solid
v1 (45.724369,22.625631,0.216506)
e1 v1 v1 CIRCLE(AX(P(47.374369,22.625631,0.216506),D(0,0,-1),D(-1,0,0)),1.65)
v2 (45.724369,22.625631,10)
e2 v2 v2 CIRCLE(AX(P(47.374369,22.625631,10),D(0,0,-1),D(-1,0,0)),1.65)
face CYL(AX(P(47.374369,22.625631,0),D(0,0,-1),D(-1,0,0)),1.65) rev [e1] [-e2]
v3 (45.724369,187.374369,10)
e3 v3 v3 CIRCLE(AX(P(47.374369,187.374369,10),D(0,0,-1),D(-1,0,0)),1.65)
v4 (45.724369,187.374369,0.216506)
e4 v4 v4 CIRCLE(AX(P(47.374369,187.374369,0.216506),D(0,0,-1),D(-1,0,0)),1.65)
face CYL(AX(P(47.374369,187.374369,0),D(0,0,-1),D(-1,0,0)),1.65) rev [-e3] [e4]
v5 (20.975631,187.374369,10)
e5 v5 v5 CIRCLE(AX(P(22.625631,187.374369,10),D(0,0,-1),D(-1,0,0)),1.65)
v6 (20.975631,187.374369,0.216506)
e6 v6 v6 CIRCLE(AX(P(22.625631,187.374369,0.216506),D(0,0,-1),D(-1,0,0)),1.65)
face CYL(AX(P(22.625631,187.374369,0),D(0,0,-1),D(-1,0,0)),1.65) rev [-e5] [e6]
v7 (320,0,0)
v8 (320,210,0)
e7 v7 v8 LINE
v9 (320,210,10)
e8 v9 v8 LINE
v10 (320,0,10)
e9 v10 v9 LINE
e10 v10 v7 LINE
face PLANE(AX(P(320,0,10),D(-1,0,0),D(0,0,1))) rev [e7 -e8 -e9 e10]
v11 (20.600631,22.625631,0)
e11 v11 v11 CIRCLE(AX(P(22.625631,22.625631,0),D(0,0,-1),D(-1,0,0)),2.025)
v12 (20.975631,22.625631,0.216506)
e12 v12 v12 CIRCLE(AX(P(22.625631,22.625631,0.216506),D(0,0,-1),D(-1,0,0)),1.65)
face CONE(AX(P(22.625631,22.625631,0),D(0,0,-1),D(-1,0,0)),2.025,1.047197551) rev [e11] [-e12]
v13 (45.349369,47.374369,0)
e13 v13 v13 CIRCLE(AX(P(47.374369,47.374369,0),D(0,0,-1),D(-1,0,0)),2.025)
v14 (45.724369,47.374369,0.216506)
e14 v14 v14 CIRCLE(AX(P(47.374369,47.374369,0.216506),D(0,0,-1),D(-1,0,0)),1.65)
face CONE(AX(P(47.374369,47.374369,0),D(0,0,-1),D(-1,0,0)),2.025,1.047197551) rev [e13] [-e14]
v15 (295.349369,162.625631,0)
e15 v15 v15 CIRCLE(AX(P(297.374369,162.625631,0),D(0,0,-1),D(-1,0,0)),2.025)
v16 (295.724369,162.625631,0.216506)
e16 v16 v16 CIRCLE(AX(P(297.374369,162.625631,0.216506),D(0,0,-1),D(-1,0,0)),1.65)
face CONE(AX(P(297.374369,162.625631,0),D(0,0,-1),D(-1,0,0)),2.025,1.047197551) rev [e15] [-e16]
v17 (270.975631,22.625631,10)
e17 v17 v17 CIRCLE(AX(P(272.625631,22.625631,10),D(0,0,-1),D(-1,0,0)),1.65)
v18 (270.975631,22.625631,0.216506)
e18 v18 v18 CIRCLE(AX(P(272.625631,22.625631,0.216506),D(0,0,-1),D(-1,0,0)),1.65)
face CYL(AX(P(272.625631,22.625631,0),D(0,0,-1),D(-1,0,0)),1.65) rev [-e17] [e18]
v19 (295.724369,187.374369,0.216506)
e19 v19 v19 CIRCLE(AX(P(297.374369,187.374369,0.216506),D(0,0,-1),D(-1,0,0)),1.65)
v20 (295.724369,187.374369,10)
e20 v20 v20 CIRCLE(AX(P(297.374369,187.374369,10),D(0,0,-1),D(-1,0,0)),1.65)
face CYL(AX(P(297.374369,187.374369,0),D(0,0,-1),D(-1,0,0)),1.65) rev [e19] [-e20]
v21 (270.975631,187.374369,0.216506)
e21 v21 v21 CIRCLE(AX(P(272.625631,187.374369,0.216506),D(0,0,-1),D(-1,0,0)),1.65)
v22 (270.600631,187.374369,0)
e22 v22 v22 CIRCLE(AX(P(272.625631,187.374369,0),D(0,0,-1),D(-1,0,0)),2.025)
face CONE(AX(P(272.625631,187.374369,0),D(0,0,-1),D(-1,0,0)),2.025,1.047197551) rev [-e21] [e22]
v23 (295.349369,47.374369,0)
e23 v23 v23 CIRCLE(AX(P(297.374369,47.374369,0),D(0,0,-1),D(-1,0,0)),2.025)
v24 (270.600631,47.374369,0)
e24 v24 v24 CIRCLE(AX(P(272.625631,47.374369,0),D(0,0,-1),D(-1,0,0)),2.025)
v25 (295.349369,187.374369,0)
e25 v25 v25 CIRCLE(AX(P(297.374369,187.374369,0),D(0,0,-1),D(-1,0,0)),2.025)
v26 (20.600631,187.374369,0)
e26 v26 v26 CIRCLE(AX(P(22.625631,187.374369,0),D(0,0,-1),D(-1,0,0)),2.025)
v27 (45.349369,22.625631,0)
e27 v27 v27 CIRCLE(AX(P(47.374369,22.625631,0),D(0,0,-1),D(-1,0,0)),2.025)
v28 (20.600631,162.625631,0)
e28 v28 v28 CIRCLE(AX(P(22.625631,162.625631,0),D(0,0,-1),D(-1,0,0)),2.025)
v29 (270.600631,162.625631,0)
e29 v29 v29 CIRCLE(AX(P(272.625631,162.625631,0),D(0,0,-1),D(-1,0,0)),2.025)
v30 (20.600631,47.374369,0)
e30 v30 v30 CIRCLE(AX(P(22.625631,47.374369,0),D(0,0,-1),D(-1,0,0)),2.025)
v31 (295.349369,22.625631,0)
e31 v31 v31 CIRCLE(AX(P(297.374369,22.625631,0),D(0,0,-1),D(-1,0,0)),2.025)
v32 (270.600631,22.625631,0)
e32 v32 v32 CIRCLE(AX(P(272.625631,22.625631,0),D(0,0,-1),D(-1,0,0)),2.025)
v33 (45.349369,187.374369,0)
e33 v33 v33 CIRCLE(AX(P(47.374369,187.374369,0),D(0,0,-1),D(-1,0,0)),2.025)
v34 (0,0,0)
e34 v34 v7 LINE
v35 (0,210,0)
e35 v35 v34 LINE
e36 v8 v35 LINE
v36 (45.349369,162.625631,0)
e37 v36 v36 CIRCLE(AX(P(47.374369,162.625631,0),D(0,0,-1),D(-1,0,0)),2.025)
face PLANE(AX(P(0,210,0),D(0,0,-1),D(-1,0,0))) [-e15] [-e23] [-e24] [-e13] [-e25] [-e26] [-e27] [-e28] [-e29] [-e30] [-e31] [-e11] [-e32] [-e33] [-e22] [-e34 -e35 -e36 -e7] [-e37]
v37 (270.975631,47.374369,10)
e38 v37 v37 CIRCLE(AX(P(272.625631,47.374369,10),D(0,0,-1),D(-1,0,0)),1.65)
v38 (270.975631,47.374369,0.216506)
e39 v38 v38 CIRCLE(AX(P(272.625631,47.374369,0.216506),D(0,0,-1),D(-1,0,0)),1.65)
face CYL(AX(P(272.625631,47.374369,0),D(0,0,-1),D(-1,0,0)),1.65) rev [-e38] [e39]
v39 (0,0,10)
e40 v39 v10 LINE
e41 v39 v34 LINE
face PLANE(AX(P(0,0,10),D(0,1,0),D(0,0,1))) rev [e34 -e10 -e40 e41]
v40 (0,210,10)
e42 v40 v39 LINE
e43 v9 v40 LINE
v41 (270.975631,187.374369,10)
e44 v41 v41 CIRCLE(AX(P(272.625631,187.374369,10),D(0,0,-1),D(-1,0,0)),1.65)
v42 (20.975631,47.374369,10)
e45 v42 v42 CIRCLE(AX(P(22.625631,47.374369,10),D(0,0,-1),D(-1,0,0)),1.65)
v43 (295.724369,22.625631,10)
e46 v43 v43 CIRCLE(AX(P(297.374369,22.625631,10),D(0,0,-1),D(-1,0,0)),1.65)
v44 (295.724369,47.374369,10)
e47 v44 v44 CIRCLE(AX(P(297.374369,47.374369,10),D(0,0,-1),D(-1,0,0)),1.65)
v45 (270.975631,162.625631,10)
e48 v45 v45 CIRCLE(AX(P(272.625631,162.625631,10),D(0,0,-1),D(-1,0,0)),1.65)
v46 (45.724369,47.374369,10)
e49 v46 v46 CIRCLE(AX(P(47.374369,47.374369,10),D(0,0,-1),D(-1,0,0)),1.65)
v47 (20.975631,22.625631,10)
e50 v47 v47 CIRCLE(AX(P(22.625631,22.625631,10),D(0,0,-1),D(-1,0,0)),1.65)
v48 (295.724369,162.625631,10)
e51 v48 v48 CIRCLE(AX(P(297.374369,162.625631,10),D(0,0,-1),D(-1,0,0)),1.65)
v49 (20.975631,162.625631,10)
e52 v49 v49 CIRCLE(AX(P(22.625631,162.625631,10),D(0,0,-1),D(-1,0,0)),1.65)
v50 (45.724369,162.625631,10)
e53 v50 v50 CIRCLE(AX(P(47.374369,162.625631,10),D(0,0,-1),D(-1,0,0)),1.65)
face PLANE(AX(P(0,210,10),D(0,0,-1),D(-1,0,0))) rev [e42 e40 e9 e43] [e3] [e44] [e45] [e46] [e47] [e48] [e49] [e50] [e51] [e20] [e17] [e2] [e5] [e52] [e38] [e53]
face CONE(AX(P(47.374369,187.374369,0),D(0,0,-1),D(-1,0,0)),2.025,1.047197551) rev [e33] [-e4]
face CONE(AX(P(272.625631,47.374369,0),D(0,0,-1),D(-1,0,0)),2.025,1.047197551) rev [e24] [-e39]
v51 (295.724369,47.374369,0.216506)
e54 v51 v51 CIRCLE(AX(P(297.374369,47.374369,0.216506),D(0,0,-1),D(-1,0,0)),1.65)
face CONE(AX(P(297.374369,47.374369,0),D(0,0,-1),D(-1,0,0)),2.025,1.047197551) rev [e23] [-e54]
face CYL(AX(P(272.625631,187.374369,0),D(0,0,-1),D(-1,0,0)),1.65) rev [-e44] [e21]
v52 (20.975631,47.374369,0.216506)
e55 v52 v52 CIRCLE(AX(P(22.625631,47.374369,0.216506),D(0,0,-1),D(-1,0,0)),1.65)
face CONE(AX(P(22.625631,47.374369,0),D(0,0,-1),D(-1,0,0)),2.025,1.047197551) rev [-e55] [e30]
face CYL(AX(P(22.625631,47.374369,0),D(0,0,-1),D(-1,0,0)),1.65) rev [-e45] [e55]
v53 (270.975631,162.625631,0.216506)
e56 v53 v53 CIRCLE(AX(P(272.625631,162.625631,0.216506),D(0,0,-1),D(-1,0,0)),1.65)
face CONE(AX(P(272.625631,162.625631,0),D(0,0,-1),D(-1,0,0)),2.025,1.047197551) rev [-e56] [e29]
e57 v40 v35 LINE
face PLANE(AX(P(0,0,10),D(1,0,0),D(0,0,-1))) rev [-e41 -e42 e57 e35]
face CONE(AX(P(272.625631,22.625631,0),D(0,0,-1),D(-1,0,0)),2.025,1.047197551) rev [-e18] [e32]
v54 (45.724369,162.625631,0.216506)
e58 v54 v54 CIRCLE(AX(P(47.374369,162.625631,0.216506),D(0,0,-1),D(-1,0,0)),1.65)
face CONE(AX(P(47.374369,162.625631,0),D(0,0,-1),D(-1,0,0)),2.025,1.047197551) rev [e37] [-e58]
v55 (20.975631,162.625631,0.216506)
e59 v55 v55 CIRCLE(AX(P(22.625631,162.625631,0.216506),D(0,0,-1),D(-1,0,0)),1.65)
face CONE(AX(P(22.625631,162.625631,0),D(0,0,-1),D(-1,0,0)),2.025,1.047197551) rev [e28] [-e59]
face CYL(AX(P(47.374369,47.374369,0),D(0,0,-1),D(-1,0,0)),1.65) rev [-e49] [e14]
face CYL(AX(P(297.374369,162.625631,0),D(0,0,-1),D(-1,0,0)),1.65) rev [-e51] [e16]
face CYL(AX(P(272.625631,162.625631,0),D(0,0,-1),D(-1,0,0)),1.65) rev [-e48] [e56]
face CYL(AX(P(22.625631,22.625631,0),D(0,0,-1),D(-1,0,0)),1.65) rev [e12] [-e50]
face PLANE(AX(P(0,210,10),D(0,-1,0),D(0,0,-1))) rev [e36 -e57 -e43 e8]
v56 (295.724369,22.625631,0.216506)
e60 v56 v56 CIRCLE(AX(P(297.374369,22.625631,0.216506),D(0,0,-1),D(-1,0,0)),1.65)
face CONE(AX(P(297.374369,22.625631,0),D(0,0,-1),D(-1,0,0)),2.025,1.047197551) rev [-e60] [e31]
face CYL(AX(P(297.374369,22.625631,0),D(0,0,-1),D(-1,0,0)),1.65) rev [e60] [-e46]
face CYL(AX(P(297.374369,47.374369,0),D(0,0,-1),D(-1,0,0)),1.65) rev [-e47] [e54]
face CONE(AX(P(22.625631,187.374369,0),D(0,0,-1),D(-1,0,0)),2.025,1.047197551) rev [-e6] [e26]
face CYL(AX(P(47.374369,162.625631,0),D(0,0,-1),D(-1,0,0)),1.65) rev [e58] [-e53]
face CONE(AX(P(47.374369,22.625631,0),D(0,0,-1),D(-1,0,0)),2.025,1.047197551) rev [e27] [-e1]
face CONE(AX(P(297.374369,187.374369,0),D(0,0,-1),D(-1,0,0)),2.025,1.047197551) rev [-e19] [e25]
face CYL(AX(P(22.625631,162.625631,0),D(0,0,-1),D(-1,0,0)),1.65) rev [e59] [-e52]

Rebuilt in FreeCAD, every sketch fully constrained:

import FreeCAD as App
import Part
import Sketcher
from FreeCAD import Vector
Q = App.Units.Quantity

doc = App.newDocument("Part")
body = doc.addObject("PartDesign::Body", "Body")

sketch1 = body.newObject("Sketcher::SketchObject", "Sketch")
sketch1.AttachmentSupport = (doc.getObject("XY_Plane"), [""])
sketch1.MapMode = "FlatFace"
sketch1.addGeometry(Part.LineSegment(Vector(0, 210, 0), Vector(0, 0, 0)), False)
sketch1.addGeometry(Part.LineSegment(Vector(0, 0, 0), Vector(320, 0, 0)), False)
sketch1.addGeometry(Part.LineSegment(Vector(320, 0, 0), Vector(320, 210, 0)), False)
sketch1.addGeometry(Part.LineSegment(Vector(320, 210, 0), Vector(0, 210, 0)), False)
sketch1.addConstraint(Sketcher.Constraint("Coincident", 0, 2, 1, 1))
sketch1.addConstraint(Sketcher.Constraint("Coincident", 1, 2, 2, 1))
sketch1.addConstraint(Sketcher.Constraint("Coincident", 2, 2, 3, 1))
sketch1.addConstraint(Sketcher.Constraint("Coincident", 3, 2, 0, 1))
sketch1.addConstraint(Sketcher.Constraint("Vertical", 0))
sketch1.addConstraint(Sketcher.Constraint("Horizontal", 1))
sketch1.addConstraint(Sketcher.Constraint("Vertical", 2))
sketch1.addConstraint(Sketcher.Constraint("Horizontal", 3))
sketch1.addConstraint(Sketcher.Constraint("Coincident", 0, 2, -1, 1))
sketch1.addConstraint(Sketcher.Constraint("DistanceX", 1, 1, 1, 2, Q("320 mm")))
sketch1.addConstraint(Sketcher.Constraint("DistanceY", 0, 2, 0, 1, Q("210 mm")))
pad1 = body.newObject("PartDesign::Pad", "Pad")
pad1.Profile = sketch1
pad1.Length = 10

sketch2 = body.newObject("Sketcher::SketchObject", "Sketch001")
sketch2.AttachmentSupport = (doc.getObject("XY_Plane"), [""])
sketch2.MapMode = "FlatFace"
sketch2.addGeometry(Part.Circle(Vector(22.6, 22.6, 0), Vector(0, 0, 1), 1.6), False)
sketch2.addGeometry(Part.Circle(Vector(47.4, 22.6, 0), Vector(0, 0, 1), 1.6), False)
sketch2.addGeometry(Part.Circle(Vector(47.4, 47.4, 0), Vector(0, 0, 1), 1.6), False)
sketch2.addGeometry(Part.Circle(Vector(22.6, 47.4, 0), Vector(0, 0, 1), 1.6), False)
sketch2.addGeometry(Part.Circle(Vector(297.4, 47.4, 0), Vector(0, 0, 1), 1.6), False)
sketch2.addGeometry(Part.Circle(Vector(272.6, 47.4, 0), Vector(0, 0, 1), 1.6), False)
sketch2.addGeometry(Part.Circle(Vector(272.6, 22.6, 0), Vector(0, 0, 1), 1.6), False)
sketch2.addGeometry(Part.Circle(Vector(297.4, 22.6, 0), Vector(0, 0, 1), 1.6), False)
sketch2.addGeometry(Part.Circle(Vector(22.6, 162.6, 0), Vector(0, 0, 1), 1.6), False)
sketch2.addGeometry(Part.Circle(Vector(47.4, 162.6, 0), Vector(0, 0, 1), 1.6), False)
sketch2.addGeometry(Part.Circle(Vector(47.4, 187.4, 0), Vector(0, 0, 1), 1.6), False)
sketch2.addGeometry(Part.Circle(Vector(22.6, 187.4, 0), Vector(0, 0, 1), 1.6), False)
sketch2.addGeometry(Part.Circle(Vector(297.4, 187.4, 0), Vector(0, 0, 1), 1.6), False)
sketch2.addGeometry(Part.Circle(Vector(272.6, 187.4, 0), Vector(0, 0, 1), 1.6), False)
sketch2.addGeometry(Part.Circle(Vector(272.6, 162.6, 0), Vector(0, 0, 1), 1.6), False)
sketch2.addGeometry(Part.Circle(Vector(297.4, 162.6, 0), Vector(0, 0, 1), 1.6), False)
sketch2.addConstraint(Sketcher.Constraint("Equal", 0, 1))
sketch2.addConstraint(Sketcher.Constraint("Equal", 1, 2))
sketch2.addConstraint(Sketcher.Constraint("Equal", 2, 3))
sketch2.addConstraint(Sketcher.Constraint("Equal", 3, 4))
sketch2.addConstraint(Sketcher.Constraint("Equal", 4, 5))
sketch2.addConstraint(Sketcher.Constraint("Equal", 5, 6))
sketch2.addConstraint(Sketcher.Constraint("Equal", 6, 7))
sketch2.addConstraint(Sketcher.Constraint("Equal", 7, 8))
sketch2.addConstraint(Sketcher.Constraint("Equal", 8, 9))
sketch2.addConstraint(Sketcher.Constraint("Equal", 9, 10))
sketch2.addConstraint(Sketcher.Constraint("Equal", 10, 11))
sketch2.addConstraint(Sketcher.Constraint("Equal", 11, 12))
sketch2.addConstraint(Sketcher.Constraint("Equal", 12, 13))
sketch2.addConstraint(Sketcher.Constraint("Equal", 13, 14))
sketch2.addConstraint(Sketcher.Constraint("Equal", 14, 15))
sketch2.addConstraint(Sketcher.Constraint("Horizontal", 0, 3, 1, 3))
sketch2.addConstraint(Sketcher.Constraint("Horizontal", 2, 3, 3, 3))
sketch2.addConstraint(Sketcher.Constraint("Horizontal", 3, 3, 4, 3))
sketch2.addConstraint(Sketcher.Constraint("Horizontal", 4, 3, 5, 3))
sketch2.addConstraint(Sketcher.Constraint("Horizontal", 1, 3, 6, 3))
sketch2.addConstraint(Sketcher.Constraint("Horizontal", 6, 3, 7, 3))
sketch2.addConstraint(Sketcher.Constraint("Horizontal", 8, 3, 9, 3))
sketch2.addConstraint(Sketcher.Constraint("Horizontal", 10, 3, 11, 3))
sketch2.addConstraint(Sketcher.Constraint("Horizontal", 11, 3, 12, 3))
sketch2.addConstraint(Sketcher.Constraint("Horizontal", 12, 3, 13, 3))
sketch2.addConstraint(Sketcher.Constraint("Horizontal", 9, 3, 14, 3))
sketch2.addConstraint(Sketcher.Constraint("Horizontal", 14, 3, 15, 3))
sketch2.addConstraint(Sketcher.Constraint("Vertical", 1, 3, 2, 3))
sketch2.addConstraint(Sketcher.Constraint("Vertical", 0, 3, 3, 3))
sketch2.addConstraint(Sketcher.Constraint("Vertical", 5, 3, 6, 3))
sketch2.addConstraint(Sketcher.Constraint("Vertical", 4, 3, 7, 3))
sketch2.addConstraint(Sketcher.Constraint("Vertical", 3, 3, 8, 3))
sketch2.addConstraint(Sketcher.Constraint("Vertical", 2, 3, 9, 3))
sketch2.addConstraint(Sketcher.Constraint("Vertical", 9, 3, 10, 3))
sketch2.addConstraint(Sketcher.Constraint("Vertical", 8, 3, 11, 3))
sketch2.addConstraint(Sketcher.Constraint("Vertical", 7, 3, 12, 3))
sketch2.addConstraint(Sketcher.Constraint("Vertical", 6, 3, 13, 3))
sketch2.addConstraint(Sketcher.Constraint("Vertical", 13, 3, 14, 3))
sketch2.addConstraint(Sketcher.Constraint("Vertical", 12, 3, 15, 3))
sketch2.addConstraint(Sketcher.Constraint("Diameter", 0, Q("3.3 mm")))
sketch2.addConstraint(Sketcher.Constraint("DistanceX", 2, 3, 4, 3, Q("250 mm")))
sketch2.addConstraint(Sketcher.Constraint("DistanceX", 3, 3, 5, 3, Q("250 mm")))
sketch2.addConstraint(Sketcher.Constraint("DistanceY", 0, 3, 8, 3, Q("140 mm")))
sketch2.addConstraint(Sketcher.Constraint("DistanceY", 2, 3, 10, 3, Q("140 mm")))
sketch2.addConstraint(Sketcher.Constraint("DistanceX", -1, 1, 0, 3, Q("22.625631 mm")))
sketch2.addConstraint(Sketcher.Constraint("DistanceY", -1, 1, 0, 3, Q("22.625631 mm")))
sketch2.addConstraint(Sketcher.Constraint("DistanceX", -1, 1, 1, 3, Q("47.374369 mm")))
sketch2.addConstraint(Sketcher.Constraint("DistanceY", -1, 1, 2, 3, Q("47.374369 mm")))
doc.recompute()
hole = body.newObject("PartDesign::Hole", "Hole")
hole.Profile = sketch2
hole.ThreadType = "None"
hole.Diameter = 3.3
hole.DepthType = "Dimension"
hole.Depth = 11.5
hole.DrillPoint = "Angled"
hole.DrillPointAngle = 118
hole.HoleCutType = "Countersink"
hole.HoleCutDiameter = 4.05
hole.HoleCutCountersinkAngle = 120
hole.Reversed = True

doc.recompute()
